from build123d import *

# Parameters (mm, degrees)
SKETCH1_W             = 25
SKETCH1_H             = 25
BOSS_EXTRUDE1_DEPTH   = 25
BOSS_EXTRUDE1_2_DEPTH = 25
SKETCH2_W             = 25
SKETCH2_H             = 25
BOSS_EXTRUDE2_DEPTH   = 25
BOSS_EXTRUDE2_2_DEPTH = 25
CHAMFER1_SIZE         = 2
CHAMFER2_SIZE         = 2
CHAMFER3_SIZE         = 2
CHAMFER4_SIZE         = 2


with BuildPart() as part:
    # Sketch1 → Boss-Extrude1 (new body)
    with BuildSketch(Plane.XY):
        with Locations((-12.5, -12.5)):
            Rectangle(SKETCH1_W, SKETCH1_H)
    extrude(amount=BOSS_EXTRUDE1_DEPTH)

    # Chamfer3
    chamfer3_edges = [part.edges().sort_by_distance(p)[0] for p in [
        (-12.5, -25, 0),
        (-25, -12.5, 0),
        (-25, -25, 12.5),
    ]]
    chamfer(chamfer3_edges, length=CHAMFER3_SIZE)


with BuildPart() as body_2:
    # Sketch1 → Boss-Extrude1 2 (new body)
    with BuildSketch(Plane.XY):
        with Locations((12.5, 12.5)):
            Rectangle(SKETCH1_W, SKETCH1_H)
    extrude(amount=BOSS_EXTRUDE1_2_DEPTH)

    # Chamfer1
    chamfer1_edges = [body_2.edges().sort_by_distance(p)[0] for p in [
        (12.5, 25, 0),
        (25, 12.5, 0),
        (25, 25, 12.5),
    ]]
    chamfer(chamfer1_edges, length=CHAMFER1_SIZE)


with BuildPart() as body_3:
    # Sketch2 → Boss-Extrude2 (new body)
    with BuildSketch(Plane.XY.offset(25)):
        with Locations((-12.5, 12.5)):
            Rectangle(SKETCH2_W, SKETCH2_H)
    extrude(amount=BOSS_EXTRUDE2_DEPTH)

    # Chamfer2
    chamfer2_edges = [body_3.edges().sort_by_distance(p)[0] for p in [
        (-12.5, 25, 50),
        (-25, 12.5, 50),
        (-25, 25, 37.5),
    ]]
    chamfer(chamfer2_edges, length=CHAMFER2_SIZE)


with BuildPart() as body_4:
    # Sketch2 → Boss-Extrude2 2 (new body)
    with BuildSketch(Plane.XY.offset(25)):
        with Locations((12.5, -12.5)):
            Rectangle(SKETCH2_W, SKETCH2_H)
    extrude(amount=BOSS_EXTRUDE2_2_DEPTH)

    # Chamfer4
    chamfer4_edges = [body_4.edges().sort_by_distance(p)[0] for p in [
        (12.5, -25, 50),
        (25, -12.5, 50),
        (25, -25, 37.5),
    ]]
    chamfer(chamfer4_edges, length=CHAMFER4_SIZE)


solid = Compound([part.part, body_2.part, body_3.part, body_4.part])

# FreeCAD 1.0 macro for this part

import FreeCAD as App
import Part
import Sketcher

V = App.Vector


def edges_at(feature, points):
    """Names of the edges that pass closest to the given points."""
    edges = feature.Shape.Edges
    near = lambda p: min(range(len(edges)), key=lambda i: edges[i].distToShape(Part.Vertex(*p))[0])
    return sorted({f"Edge{near(p) + 1}" for p in points})

doc = App.newDocument("Part")
body = doc.addObject("PartDesign::Body", "Body")

sketch1 = body.newObject("Sketcher::SketchObject", "Sketch")
sketch1.AttachmentSupport = (doc.getObject("XY_Plane"), [""])
sketch1.MapMode = "FlatFace"
sketch1.addGeometry(Part.LineSegment(V(-25, 0, 0), V(-25, -25, 0)), False)
sketch1.addGeometry(Part.LineSegment(V(-25, -25, 0), V(0, -25, 0)), False)
sketch1.addGeometry(Part.LineSegment(V(0, -25, 0), V(0, 0, 0)), False)
sketch1.addGeometry(Part.LineSegment(V(0, 0, 0), V(-25, 0, 0)), False)
sketch1.addConstraint(Sketcher.Constraint("Coincident", 0, 2, 1, 1))
sketch1.addConstraint(Sketcher.Constraint("Coincident", 1, 2, 2, 1))
sketch1.addConstraint(Sketcher.Constraint("Coincident", 2, 2, 3, 1))
sketch1.addConstraint(Sketcher.Constraint("Coincident", 3, 2, 0, 1))
sketch1.addConstraint(Sketcher.Constraint("Vertical", 0))
sketch1.addConstraint(Sketcher.Constraint("Horizontal", 1))
sketch1.addConstraint(Sketcher.Constraint("Vertical", 2))
sketch1.addConstraint(Sketcher.Constraint("Horizontal", 3))
sketch1.addConstraint(Sketcher.Constraint("Coincident", 2, 2, -1, 1))
sketch1.addConstraint(Sketcher.Constraint("Equal", 3, 0))
sketch1.addConstraint(Sketcher.Constraint("DistanceX", 1, 1, 1, 2, 25.0))
pad1 = body.newObject("PartDesign::Pad", "Pad")
pad1.Profile = sketch1
pad1.Length = 25
doc.recompute()

chamfer = body.newObject("PartDesign::Chamfer", "Chamfer")
chamfer.Base = (pad1, edges_at(pad1, [(-12.5, -25, 0), (-25, -12.5, 0), (-25, -25, 12.5)]))
chamfer.Size = 2
body2 = doc.addObject("PartDesign::Body", "Body001")

sketch2 = body2.newObject("Sketcher::SketchObject", "Sketch001")
sketch2.AttachmentSupport = (doc.getObject("XY_Plane001"), [""])
sketch2.MapMode = "FlatFace"
sketch2.addGeometry(Part.LineSegment(V(0, 25, 0), V(0, 0, 0)), False)
sketch2.addGeometry(Part.LineSegment(V(0, 0, 0), V(25, 0, 0)), False)
sketch2.addGeometry(Part.LineSegment(V(25, 0, 0), V(25, 25, 0)), False)
sketch2.addGeometry(Part.LineSegment(V(25, 25, 0), V(0, 25, 0)), False)
sketch2.addConstraint(Sketcher.Constraint("Coincident", 0, 2, 1, 1))
sketch2.addConstraint(Sketcher.Constraint("Coincident", 1, 2, 2, 1))
sketch2.addConstraint(Sketcher.Constraint("Coincident", 2, 2, 3, 1))
sketch2.addConstraint(Sketcher.Constraint("Coincident", 3, 2, 0, 1))
sketch2.addConstraint(Sketcher.Constraint("Vertical", 0))
sketch2.addConstraint(Sketcher.Constraint("Horizontal", 1))
sketch2.addConstraint(Sketcher.Constraint("Vertical", 2))
sketch2.addConstraint(Sketcher.Constraint("Horizontal", 3))
sketch2.addConstraint(Sketcher.Constraint("Coincident", 0, 2, -1, 1))
sketch2.addConstraint(Sketcher.Constraint("Equal", 3, 0))
sketch2.addConstraint(Sketcher.Constraint("DistanceX", 1, 1, 1, 2, 25.0))
pad2 = body2.newObject("PartDesign::Pad", "Pad001")
pad2.Profile = sketch2
pad2.Length = 25
doc.recompute()

chamfer2 = body2.newObject("PartDesign::Chamfer", "Chamfer001")
chamfer2.Base = (pad2, edges_at(pad2, [(12.5, 25, 0), (25, 12.5, 0), (25, 25, 12.5)]))
chamfer2.Size = 2
body3 = doc.addObject("PartDesign::Body", "Body002")

sketch3 = body3.newObject("Sketcher::SketchObject", "Sketch002")
sketch3.AttachmentSupport = (doc.getObject("XY_Plane002"), [""])
sketch3.MapMode = "FlatFace"
sketch3.AttachmentOffset = App.Placement(V(0, 0, 25), App.Rotation())
sketch3.addGeometry(Part.LineSegment(V(-25, 25, 0), V(-25, 0, 0)), False)
sketch3.addGeometry(Part.LineSegment(V(-25, 0, 0), V(0, 0, 0)), False)
sketch3.addGeometry(Part.LineSegment(V(0, 0, 0), V(0, 25, 0)), False)
sketch3.addGeometry(Part.LineSegment(V(0, 25, 0), V(-25, 25, 0)), False)
sketch3.addConstraint(Sketcher.Constraint("Coincident", 0, 2, 1, 1))
sketch3.addConstraint(Sketcher.Constraint("Coincident", 1, 2, 2, 1))
sketch3.addConstraint(Sketcher.Constraint("Coincident", 2, 2, 3, 1))
sketch3.addConstraint(Sketcher.Constraint("Coincident", 3, 2, 0, 1))
sketch3.addConstraint(Sketcher.Constraint("Vertical", 0))
sketch3.addConstraint(Sketcher.Constraint("Horizontal", 1))
sketch3.addConstraint(Sketcher.Constraint("Vertical", 2))
sketch3.addConstraint(Sketcher.Constraint("Horizontal", 3))
sketch3.addConstraint(Sketcher.Constraint("Coincident", 1, 2, -1, 1))
sketch3.addConstraint(Sketcher.Constraint("Equal", 3, 0))
sketch3.addConstraint(Sketcher.Constraint("DistanceX", 1, 1, 1, 2, 25.0))
pad3 = body3.newObject("PartDesign::Pad", "Pad002")
pad3.Profile = sketch3
pad3.Length = 25
doc.recompute()

chamfer3 = body3.newObject("PartDesign::Chamfer", "Chamfer002")
chamfer3.Base = (pad3, edges_at(pad3, [(-12.5, 25, 50), (-25, 12.5, 50), (-25, 25, 37.5)]))
chamfer3.Size = 2
body4 = doc.addObject("PartDesign::Body", "Body003")

sketch4 = body4.newObject("Sketcher::SketchObject", "Sketch003")
sketch4.AttachmentSupport = (doc.getObject("XY_Plane003"), [""])
sketch4.MapMode = "FlatFace"
sketch4.AttachmentOffset = App.Placement(V(0, 0, 25), App.Rotation())
sketch4.addGeometry(Part.LineSegment(V(0, 0, 0), V(0, -25, 0)), False)
sketch4.addGeometry(Part.LineSegment(V(0, -25, 0), V(25, -25, 0)), False)
sketch4.addGeometry(Part.LineSegment(V(25, -25, 0), V(25, 0, 0)), False)
sketch4.addGeometry(Part.LineSegment(V(25, 0, 0), V(0, 0, 0)), False)
sketch4.addConstraint(Sketcher.Constraint("Coincident", 0, 2, 1, 1))
sketch4.addConstraint(Sketcher.Constraint("Coincident", 1, 2, 2, 1))
sketch4.addConstraint(Sketcher.Constraint("Coincident", 2, 2, 3, 1))
sketch4.addConstraint(Sketcher.Constraint("Coincident", 3, 2, 0, 1))
sketch4.addConstraint(Sketcher.Constraint("Vertical", 0))
sketch4.addConstraint(Sketcher.Constraint("Horizontal", 1))
sketch4.addConstraint(Sketcher.Constraint("Vertical", 2))
sketch4.addConstraint(Sketcher.Constraint("Horizontal", 3))
sketch4.addConstraint(Sketcher.Constraint("Coincident", 3, 2, -1, 1))
sketch4.addConstraint(Sketcher.Constraint("Equal", 3, 0))
sketch4.addConstraint(Sketcher.Constraint("DistanceX", 1, 1, 1, 2, 25.0))
pad4 = body4.newObject("PartDesign::Pad", "Pad003")
pad4.Profile = sketch4
pad4.Length = 25
doc.recompute()

chamfer4 = body4.newObject("PartDesign::Chamfer", "Chamfer003")
chamfer4.Base = (pad4, edges_at(pad4, [(12.5, -25, 50), (25, -12.5, 50), (25, -25, 37.5)]))
chamfer4.Size = 2

doc.recompute()
